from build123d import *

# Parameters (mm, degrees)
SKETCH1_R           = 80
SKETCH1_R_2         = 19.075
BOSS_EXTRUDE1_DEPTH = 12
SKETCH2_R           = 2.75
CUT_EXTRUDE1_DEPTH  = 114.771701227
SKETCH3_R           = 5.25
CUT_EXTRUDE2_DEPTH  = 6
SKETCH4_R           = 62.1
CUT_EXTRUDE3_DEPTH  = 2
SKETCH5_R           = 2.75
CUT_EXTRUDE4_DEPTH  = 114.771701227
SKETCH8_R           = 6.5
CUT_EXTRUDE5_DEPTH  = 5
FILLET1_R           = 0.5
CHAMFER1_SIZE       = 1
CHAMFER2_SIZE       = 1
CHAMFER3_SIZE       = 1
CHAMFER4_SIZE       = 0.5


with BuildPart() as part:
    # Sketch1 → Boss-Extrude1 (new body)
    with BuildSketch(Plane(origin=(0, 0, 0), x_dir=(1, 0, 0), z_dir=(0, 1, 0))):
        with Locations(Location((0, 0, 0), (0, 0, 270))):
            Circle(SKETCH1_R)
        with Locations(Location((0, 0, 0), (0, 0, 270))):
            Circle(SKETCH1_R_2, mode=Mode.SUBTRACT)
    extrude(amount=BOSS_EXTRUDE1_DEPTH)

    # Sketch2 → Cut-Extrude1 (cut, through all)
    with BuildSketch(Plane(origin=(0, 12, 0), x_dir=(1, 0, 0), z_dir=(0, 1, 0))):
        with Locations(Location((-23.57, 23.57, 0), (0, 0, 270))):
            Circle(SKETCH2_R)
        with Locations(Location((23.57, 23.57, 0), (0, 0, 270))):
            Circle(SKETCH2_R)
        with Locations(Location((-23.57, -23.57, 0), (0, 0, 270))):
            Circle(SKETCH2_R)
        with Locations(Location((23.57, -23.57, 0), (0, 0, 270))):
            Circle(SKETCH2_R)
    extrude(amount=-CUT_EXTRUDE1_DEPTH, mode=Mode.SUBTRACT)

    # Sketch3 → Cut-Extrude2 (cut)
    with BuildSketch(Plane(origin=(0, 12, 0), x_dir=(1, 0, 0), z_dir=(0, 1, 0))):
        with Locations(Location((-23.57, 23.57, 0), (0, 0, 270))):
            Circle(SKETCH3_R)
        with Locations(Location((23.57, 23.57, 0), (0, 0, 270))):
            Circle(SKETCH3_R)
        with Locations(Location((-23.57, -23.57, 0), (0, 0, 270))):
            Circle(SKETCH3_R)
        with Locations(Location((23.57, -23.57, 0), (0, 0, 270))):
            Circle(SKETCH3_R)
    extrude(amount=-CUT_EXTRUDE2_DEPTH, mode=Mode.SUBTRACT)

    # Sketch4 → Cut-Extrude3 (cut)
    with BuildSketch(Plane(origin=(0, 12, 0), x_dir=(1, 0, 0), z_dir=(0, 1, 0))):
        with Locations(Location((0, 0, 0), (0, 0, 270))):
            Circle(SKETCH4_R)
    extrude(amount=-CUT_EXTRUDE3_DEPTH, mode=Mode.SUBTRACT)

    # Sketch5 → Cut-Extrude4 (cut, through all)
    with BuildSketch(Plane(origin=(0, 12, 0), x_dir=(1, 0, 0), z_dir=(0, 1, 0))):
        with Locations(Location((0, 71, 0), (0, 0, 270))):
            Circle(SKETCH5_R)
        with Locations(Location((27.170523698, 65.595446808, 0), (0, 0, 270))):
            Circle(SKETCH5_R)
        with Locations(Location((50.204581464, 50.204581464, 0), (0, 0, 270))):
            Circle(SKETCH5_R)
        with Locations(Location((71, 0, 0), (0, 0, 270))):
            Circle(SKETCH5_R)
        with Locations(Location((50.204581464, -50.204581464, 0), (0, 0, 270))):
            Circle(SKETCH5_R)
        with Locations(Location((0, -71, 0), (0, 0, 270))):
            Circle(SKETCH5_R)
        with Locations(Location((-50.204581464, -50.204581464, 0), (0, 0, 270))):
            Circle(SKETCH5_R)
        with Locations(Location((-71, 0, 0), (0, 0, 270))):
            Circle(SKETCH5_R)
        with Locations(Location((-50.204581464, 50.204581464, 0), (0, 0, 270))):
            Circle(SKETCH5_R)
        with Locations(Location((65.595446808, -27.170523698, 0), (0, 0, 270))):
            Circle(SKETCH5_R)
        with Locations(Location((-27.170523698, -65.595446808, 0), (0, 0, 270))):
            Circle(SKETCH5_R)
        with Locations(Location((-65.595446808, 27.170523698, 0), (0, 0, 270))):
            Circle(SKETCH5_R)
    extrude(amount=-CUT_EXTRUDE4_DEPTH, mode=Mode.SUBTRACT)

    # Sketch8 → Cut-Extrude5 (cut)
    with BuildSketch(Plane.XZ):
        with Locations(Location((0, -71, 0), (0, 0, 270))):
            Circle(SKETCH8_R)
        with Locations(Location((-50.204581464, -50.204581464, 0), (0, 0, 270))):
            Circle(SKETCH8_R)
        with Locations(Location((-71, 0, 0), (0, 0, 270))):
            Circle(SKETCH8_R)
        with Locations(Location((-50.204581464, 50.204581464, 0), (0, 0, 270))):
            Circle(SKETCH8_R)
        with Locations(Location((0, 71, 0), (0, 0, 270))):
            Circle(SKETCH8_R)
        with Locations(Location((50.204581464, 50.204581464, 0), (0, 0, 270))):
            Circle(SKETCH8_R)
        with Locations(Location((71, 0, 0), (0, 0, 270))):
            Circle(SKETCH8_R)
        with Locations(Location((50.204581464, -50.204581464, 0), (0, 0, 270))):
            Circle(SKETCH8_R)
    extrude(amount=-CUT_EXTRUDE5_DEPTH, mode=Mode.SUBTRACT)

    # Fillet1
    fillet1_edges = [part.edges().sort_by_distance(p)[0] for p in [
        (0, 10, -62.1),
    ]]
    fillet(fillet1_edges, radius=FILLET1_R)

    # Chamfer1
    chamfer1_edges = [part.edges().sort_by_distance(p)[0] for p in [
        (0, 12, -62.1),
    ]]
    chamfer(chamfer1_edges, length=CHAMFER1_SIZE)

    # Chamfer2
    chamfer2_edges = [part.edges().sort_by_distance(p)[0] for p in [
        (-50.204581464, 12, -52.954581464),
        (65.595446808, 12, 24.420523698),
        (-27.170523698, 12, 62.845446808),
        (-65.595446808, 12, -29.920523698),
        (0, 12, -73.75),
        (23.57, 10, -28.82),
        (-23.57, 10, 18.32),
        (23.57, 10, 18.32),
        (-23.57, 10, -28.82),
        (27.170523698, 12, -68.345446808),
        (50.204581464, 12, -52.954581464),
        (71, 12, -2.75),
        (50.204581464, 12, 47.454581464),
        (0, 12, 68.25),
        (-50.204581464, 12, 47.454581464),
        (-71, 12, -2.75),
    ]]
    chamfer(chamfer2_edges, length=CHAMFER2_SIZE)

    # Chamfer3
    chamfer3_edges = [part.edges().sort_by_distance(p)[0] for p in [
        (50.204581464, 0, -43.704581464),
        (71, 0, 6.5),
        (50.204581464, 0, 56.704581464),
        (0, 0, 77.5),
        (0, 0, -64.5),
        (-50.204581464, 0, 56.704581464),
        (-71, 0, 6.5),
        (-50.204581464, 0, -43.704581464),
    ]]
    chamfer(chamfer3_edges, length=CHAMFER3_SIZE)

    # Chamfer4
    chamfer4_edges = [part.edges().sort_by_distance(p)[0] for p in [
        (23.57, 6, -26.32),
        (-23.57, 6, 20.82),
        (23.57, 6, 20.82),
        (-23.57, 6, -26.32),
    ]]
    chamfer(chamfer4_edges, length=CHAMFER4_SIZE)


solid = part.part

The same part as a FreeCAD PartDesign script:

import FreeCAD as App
import Part
import Sketcher
from FreeCAD import Vector
Q = App.Units.Quantity


def edges_at(feature, points):
    """Names of the edges that pass closest to the given points."""
    edges = feature.Shape.Edges
    near = lambda p: min(range(len(edges)), key=lambda i: edges[i].distToShape(Part.Vertex(*p))[0])
    return sorted({f"Edge{near(p) + 1}" for p in points})

doc = App.newDocument("Part")
body = doc.addObject("PartDesign::Body", "Body")

sketch1 = body.newObject("Sketcher::SketchObject", "Sketch")
sketch1.AttachmentSupport = (doc.getObject("XZ_Plane"), [""])
sketch1.MapMode = "FlatFace"
sketch1.addGeometry([
    Part.Circle(Vector(0, 0, 0), Vector(0, 0, 1), 80),
    Part.Circle(Vector(0, 0, 0), Vector(0, 0, 1), 19.075),
], False)
sketch1.addConstraint([
    Sketcher.Constraint("Coincident", 0, 3, -1, 1),
    Sketcher.Constraint("Coincident", 1, 3, -1, 1),
    Sketcher.Constraint("Diameter", 0, Q("160 mm")),
    Sketcher.Constraint("Diameter", 1, Q("38.15 mm")),
])
pad1 = body.newObject("PartDesign::Pad", "Pad")
pad1.Profile = sketch1
pad1.Length = 12
pad1.Reversed = True

sketch2 = body.newObject("Sketcher::SketchObject", "Sketch001")
sketch2.AttachmentSupport = (doc.getObject("XZ_Plane"), [""])
sketch2.MapMode = "FlatFace"
sketch2.AttachmentOffset = App.Placement(Vector(0, 0, -12), App.Rotation())
sketch2.addGeometry([
    Part.Circle(Vector(-23.57, -23.57, 0), Vector(0, 0, 1), 2.75),
    Part.Circle(Vector(23.57, -23.57, 0), Vector(0, 0, 1), 2.75),
    Part.Circle(Vector(-23.57, 23.57, 0), Vector(0, 0, 1), 2.75),
    Part.Circle(Vector(23.57, 23.57, 0), Vector(0, 0, 1), 2.75),
], False)
sketch2.addConstraint([
    Sketcher.Constraint("Equal", 0, 1),
    Sketcher.Constraint("Equal", 1, 2),
    Sketcher.Constraint("Equal", 2, 3),
    Sketcher.Constraint("Symmetric", 1, 3, 2, 3, -1, 1),
    Sketcher.Constraint("Symmetric", 0, 3, 3, 3, -1, 1),
    Sketcher.Constraint("Symmetric", 0, 3, 1, 3, -2),
    Sketcher.Constraint("Diameter", 0, Q("5.5 mm")),
    Sketcher.Constraint("DistanceX", 0, 3, -1, 1, Q("23.57 mm")),
    Sketcher.Constraint("DistanceY", 0, 3, -1, 1, Q("23.57 mm")),
])
pocket1 = body.newObject("PartDesign::Pocket", "Pocket")
pocket1.Profile = sketch2
pocket1.Type = "ThroughAll"
pocket1.Reversed = True

sketch3 = body.newObject("Sketcher::SketchObject", "Sketch002")
sketch3.AttachmentSupport = (doc.getObject("XZ_Plane"), [""])
sketch3.MapMode = "FlatFace"
sketch3.AttachmentOffset = App.Placement(Vector(0, 0, -12), App.Rotation())
sketch3.addGeometry([
    Part.Circle(Vector(-23.57, -23.57, 0), Vector(0, 0, 1), 5.25),
    Part.Circle(Vector(23.57, -23.57, 0), Vector(0, 0, 1), 5.25),
    Part.Circle(Vector(-23.57, 23.57, 0), Vector(0, 0, 1), 5.25),
    Part.Circle(Vector(23.57, 23.57, 0), Vector(0, 0, 1), 5.25),
], False)
sketch3.addConstraint([
    Sketcher.Constraint("Equal", 0, 1),
    Sketcher.Constraint("Equal", 1, 2),
    Sketcher.Constraint("Equal", 2, 3),
    Sketcher.Constraint("Symmetric", 1, 3, 2, 3, -1, 1),
    Sketcher.Constraint("Symmetric", 0, 3, 3, 3, -1, 1),
    Sketcher.Constraint("Symmetric", 0, 3, 1, 3, -2),
    Sketcher.Constraint("Diameter", 0, Q("10.5 mm")),
    Sketcher.Constraint("DistanceX", 0, 3, -1, 1, Q("23.57 mm")),
    Sketcher.Constraint("DistanceY", 0, 3, -1, 1, Q("23.57 mm")),
])
pocket2 = body.newObject("PartDesign::Pocket", "Pocket001")
pocket2.Profile = sketch3
pocket2.Length = 6
pocket2.Reversed = True

sketch4 = body.newObject("Sketcher::SketchObject", "Sketch003")
sketch4.AttachmentSupport = (doc.getObject("XZ_Plane"), [""])
sketch4.MapMode = "FlatFace"
sketch4.AttachmentOffset = App.Placement(Vector(0, 0, -12), App.Rotation())
sketch4.addGeometry(Part.Circle(Vector(0, 0, 0), Vector(0, 0, 1), 62.1), False)
sketch4.addConstraint([
    Sketcher.Constraint("Coincident", 0, 3, -1, 1),
    Sketcher.Constraint("Diameter", 0, Q("124.2 mm")),
])
pocket3 = body.newObject("PartDesign::Pocket", "Pocket002")
pocket3.Profile = sketch4
pocket3.Length = 2
pocket3.Reversed = True

sketch5 = body.newObject("Sketcher::SketchObject", "Sketch004")
sketch5.AttachmentSupport = (doc.getObject("XZ_Plane"), [""])
sketch5.MapMode = "FlatFace"
sketch5.AttachmentOffset = App.Placement(Vector(0, 0, -12), App.Rotation())
sketch5.addGeometry([
    Part.Circle(Vector(0, -71, 0), Vector(0, 0, 1), 2.75),
    Part.Circle(Vector(27.170524, -65.595447, 0), Vector(0, 0, 1), 2.75),
    Part.Circle(Vector(50.204581, -50.204581, 0), Vector(0, 0, 1), 2.75),
    Part.Circle(Vector(71, 0, 0), Vector(0, 0, 1), 2.75),
    Part.Circle(Vector(50.204581, 50.204581, 0), Vector(0, 0, 1), 2.75),
    Part.Circle(Vector(0, 71, 0), Vector(0, 0, 1), 2.75),
    Part.Circle(Vector(-50.204581, 50.204581, 0), Vector(0, 0, 1), 2.75),
    Part.Circle(Vector(-71, 0, 0), Vector(0, 0, 1), 2.75),
    Part.Circle(Vector(-50.204581, -50.204581, 0), Vector(0, 0, 1), 2.75),
    Part.Circle(Vector(65.595447, 27.170524, 0), Vector(0, 0, 1), 2.75),
    Part.Circle(Vector(-27.170524, 65.595447, 0), Vector(0, 0, 1), 2.75),
    Part.Circle(Vector(-65.595447, -27.170524, 0), Vector(0, 0, 1), 2.75),
], False)
sketch5.addConstraint([
    Sketcher.Constraint("Equal", 0, 1),
    Sketcher.Constraint("Equal", 1, 2),
    Sketcher.Constraint("Equal", 2, 3),
    Sketcher.Constraint("Equal", 3, 4),
    Sketcher.Constraint("Equal", 4, 5),
    Sketcher.Constraint("Equal", 5, 6),
    Sketcher.Constraint("Equal", 6, 7),
    Sketcher.Constraint("Equal", 7, 8),
    Sketcher.Constraint("Equal", 8, 9),
    Sketcher.Constraint("Equal", 9, 10),
    Sketcher.Constraint("Equal", 10, 11),
    Sketcher.Constraint("Symmetric", 0, 3, 5, 3, -1, 1),
    Sketcher.Constraint("Symmetric", 2, 3, 6, 3, -1, 1),
    Sketcher.Constraint("Symmetric", 3, 3, 7, 3, -1, 1),
    Sketcher.Constraint("Symmetric", 4, 3, 8, 3, -1, 1),
    Sketcher.Constraint("Symmetric", 1, 3, 10, 3, -1, 1),
    Sketcher.Constraint("Symmetric", 9, 3, 11, 3, -1, 1),
    Sketcher.Constraint("Symmetric", 4, 3, 6, 3, -2),
    Sketcher.Constraint("PointOnObject", 0, 3, -2),
    Sketcher.Constraint("PointOnObject", 3, 3, -1),
    Sketcher.Constraint("Diameter", 0, Q("5.5 mm")),
    Sketcher.Constraint("DistanceY", 0, 3, -1, 1, Q("71 mm")),
    Sketcher.Constraint("DistanceX", -1, 1, 3, 3, Q("71 mm")),
    Sketcher.Constraint("DistanceX", -1, 1, 2, 3, Q("50.204581 mm")),
    Sketcher.Constraint("DistanceY", 2, 3, -1, 1, Q("50.204581 mm")),
    Sketcher.Constraint("DistanceY", 1, 3, 4, 3, Q("115.800028 mm")),
    Sketcher.Constraint("DistanceY", 1, 3, 9, 3, Q("92.765971 mm")),
    Sketcher.Constraint("DistanceX", 10, 3, 9, 3, Q("92.765971 mm")),
    Sketcher.Constraint("DistanceX", -1, 1, 1, 3, Q("27.170524 mm")),
])
pocket4 = body.newObject("PartDesign::Pocket", "Pocket003")
pocket4.Profile = sketch5
pocket4.Type = "ThroughAll"
pocket4.Reversed = True

sketch6 = body.newObject("Sketcher::SketchObject", "Sketch005")
sketch6.AttachmentSupport = (doc.getObject("XZ_Plane"), [""])
sketch6.MapMode = "FlatFace"
sketch6.addGeometry([
    Part.Circle(Vector(0, -71, 0), Vector(0, 0, 1), 6.5),
    Part.Circle(Vector(-50.204581, -50.204581, 0), Vector(0, 0, 1), 6.5),
    Part.Circle(Vector(-71, 0, 0), Vector(0, 0, 1), 6.5),
    Part.Circle(Vector(-50.204581, 50.204581, 0), Vector(0, 0, 1), 6.5),
    Part.Circle(Vector(0, 71, 0), Vector(0, 0, 1), 6.5),
    Part.Circle(Vector(50.204581, 50.204581, 0), Vector(0, 0, 1), 6.5),
    Part.Circle(Vector(71, 0, 0), Vector(0, 0, 1), 6.5),
    Part.Circle(Vector(50.204581, -50.204581, 0), Vector(0, 0, 1), 6.5),
], False)
sketch6.addConstraint([
    Sketcher.Constraint("Equal", 0, 1),
    Sketcher.Constraint("Equal", 1, 2),
    Sketcher.Constraint("Equal", 2, 3),
    Sketcher.Constraint("Equal", 3, 4),
    Sketcher.Constraint("Equal", 4, 5),
    Sketcher.Constraint("Equal", 5, 6),
    Sketcher.Constraint("Equal", 6, 7),
    Sketcher.Constraint("Symmetric", 0, 3, 4, 3, -1, 1),
    Sketcher.Constraint("Symmetric", 1, 3, 5, 3, -1, 1),
    Sketcher.Constraint("Symmetric", 2, 3, 6, 3, -1, 1),
    Sketcher.Constraint("Symmetric", 3, 3, 7, 3, -1, 1),
    Sketcher.Constraint("Symmetric", 3, 3, 5, 3, -2),
    Sketcher.Constraint("PointOnObject", 0, 3, -2),
    Sketcher.Constraint("PointOnObject", 2, 3, -1),
    Sketcher.Constraint("Diameter", 0, Q("13 mm")),
    Sketcher.Constraint("DistanceY", 0, 3, -1, 1, Q("71 mm")),
    Sketcher.Constraint("DistanceX", 2, 3, -1, 1, Q("71 mm")),
    Sketcher.Constraint("DistanceX", 1, 3, -1, 1, Q("50.204581 mm")),
    Sketcher.Constraint("DistanceY", 1, 3, -1, 1, Q("50.204581 mm")),
])
pocket5 = body.newObject("PartDesign::Pocket", "Pocket004")
pocket5.Profile = sketch6
pocket5.Length = 5
doc.recompute()

fillet = body.newObject("PartDesign::Fillet", "Fillet")
fillet.Base = (pocket5, edges_at(pocket5, [(0, 10, -62.1)]))
fillet.Radius = 0.5
doc.recompute()

chamfer = body.newObject("PartDesign::Chamfer", "Chamfer")
chamfer.Base = (fillet, edges_at(fillet, [(0, 12, -62.1)]))
chamfer.Size = 1
doc.recompute()

chamfer2 = body.newObject("PartDesign::Chamfer", "Chamfer001")
chamfer2.Base = (chamfer, edges_at(chamfer, [
    (-50.205, 12, -52.955),
    (65.595, 12, 24.421),
    (-27.171, 12, 62.845),
    (-65.595, 12, -29.921),
    (0, 12, -73.75),
    (23.57, 10, -28.82),
    (-23.57, 10, 18.32),
    (23.57, 10, 18.32),
    (-23.57, 10, -28.82),
    (27.171, 12, -68.345),
    (50.205, 12, -52.955),
    (71, 12, -2.75),
    (50.205, 12, 47.455),
    (0, 12, 68.25),
    (-50.205, 12, 47.455),
    (-71, 12, -2.75),
]))
chamfer2.Size = 1
doc.recompute()

chamfer3 = body.newObject("PartDesign::Chamfer", "Chamfer002")
chamfer3.Base = (chamfer2, edges_at(chamfer2, [
    (50.205, 0, -43.705),
    (71, 0, 6.5),
    (50.205, 0, 56.705),
    (0, 0, 77.5),
    (0, 0, -64.5),
    (-50.205, 0, 56.705),
    (-71, 0, 6.5),
    (-50.205, 0, -43.705),
]))
chamfer3.Size = 1
doc.recompute()

chamfer4 = body.newObject("PartDesign::Chamfer", "Chamfer003")
chamfer4.Base = (chamfer3, edges_at(chamfer3, [
    (23.57, 6, -26.32),
    (-23.57, 6, 20.82),
    (23.57, 6, 20.82),
    (-23.57, 6, -26.32),
]))
chamfer4.Size = 0.5

doc.recompute()
